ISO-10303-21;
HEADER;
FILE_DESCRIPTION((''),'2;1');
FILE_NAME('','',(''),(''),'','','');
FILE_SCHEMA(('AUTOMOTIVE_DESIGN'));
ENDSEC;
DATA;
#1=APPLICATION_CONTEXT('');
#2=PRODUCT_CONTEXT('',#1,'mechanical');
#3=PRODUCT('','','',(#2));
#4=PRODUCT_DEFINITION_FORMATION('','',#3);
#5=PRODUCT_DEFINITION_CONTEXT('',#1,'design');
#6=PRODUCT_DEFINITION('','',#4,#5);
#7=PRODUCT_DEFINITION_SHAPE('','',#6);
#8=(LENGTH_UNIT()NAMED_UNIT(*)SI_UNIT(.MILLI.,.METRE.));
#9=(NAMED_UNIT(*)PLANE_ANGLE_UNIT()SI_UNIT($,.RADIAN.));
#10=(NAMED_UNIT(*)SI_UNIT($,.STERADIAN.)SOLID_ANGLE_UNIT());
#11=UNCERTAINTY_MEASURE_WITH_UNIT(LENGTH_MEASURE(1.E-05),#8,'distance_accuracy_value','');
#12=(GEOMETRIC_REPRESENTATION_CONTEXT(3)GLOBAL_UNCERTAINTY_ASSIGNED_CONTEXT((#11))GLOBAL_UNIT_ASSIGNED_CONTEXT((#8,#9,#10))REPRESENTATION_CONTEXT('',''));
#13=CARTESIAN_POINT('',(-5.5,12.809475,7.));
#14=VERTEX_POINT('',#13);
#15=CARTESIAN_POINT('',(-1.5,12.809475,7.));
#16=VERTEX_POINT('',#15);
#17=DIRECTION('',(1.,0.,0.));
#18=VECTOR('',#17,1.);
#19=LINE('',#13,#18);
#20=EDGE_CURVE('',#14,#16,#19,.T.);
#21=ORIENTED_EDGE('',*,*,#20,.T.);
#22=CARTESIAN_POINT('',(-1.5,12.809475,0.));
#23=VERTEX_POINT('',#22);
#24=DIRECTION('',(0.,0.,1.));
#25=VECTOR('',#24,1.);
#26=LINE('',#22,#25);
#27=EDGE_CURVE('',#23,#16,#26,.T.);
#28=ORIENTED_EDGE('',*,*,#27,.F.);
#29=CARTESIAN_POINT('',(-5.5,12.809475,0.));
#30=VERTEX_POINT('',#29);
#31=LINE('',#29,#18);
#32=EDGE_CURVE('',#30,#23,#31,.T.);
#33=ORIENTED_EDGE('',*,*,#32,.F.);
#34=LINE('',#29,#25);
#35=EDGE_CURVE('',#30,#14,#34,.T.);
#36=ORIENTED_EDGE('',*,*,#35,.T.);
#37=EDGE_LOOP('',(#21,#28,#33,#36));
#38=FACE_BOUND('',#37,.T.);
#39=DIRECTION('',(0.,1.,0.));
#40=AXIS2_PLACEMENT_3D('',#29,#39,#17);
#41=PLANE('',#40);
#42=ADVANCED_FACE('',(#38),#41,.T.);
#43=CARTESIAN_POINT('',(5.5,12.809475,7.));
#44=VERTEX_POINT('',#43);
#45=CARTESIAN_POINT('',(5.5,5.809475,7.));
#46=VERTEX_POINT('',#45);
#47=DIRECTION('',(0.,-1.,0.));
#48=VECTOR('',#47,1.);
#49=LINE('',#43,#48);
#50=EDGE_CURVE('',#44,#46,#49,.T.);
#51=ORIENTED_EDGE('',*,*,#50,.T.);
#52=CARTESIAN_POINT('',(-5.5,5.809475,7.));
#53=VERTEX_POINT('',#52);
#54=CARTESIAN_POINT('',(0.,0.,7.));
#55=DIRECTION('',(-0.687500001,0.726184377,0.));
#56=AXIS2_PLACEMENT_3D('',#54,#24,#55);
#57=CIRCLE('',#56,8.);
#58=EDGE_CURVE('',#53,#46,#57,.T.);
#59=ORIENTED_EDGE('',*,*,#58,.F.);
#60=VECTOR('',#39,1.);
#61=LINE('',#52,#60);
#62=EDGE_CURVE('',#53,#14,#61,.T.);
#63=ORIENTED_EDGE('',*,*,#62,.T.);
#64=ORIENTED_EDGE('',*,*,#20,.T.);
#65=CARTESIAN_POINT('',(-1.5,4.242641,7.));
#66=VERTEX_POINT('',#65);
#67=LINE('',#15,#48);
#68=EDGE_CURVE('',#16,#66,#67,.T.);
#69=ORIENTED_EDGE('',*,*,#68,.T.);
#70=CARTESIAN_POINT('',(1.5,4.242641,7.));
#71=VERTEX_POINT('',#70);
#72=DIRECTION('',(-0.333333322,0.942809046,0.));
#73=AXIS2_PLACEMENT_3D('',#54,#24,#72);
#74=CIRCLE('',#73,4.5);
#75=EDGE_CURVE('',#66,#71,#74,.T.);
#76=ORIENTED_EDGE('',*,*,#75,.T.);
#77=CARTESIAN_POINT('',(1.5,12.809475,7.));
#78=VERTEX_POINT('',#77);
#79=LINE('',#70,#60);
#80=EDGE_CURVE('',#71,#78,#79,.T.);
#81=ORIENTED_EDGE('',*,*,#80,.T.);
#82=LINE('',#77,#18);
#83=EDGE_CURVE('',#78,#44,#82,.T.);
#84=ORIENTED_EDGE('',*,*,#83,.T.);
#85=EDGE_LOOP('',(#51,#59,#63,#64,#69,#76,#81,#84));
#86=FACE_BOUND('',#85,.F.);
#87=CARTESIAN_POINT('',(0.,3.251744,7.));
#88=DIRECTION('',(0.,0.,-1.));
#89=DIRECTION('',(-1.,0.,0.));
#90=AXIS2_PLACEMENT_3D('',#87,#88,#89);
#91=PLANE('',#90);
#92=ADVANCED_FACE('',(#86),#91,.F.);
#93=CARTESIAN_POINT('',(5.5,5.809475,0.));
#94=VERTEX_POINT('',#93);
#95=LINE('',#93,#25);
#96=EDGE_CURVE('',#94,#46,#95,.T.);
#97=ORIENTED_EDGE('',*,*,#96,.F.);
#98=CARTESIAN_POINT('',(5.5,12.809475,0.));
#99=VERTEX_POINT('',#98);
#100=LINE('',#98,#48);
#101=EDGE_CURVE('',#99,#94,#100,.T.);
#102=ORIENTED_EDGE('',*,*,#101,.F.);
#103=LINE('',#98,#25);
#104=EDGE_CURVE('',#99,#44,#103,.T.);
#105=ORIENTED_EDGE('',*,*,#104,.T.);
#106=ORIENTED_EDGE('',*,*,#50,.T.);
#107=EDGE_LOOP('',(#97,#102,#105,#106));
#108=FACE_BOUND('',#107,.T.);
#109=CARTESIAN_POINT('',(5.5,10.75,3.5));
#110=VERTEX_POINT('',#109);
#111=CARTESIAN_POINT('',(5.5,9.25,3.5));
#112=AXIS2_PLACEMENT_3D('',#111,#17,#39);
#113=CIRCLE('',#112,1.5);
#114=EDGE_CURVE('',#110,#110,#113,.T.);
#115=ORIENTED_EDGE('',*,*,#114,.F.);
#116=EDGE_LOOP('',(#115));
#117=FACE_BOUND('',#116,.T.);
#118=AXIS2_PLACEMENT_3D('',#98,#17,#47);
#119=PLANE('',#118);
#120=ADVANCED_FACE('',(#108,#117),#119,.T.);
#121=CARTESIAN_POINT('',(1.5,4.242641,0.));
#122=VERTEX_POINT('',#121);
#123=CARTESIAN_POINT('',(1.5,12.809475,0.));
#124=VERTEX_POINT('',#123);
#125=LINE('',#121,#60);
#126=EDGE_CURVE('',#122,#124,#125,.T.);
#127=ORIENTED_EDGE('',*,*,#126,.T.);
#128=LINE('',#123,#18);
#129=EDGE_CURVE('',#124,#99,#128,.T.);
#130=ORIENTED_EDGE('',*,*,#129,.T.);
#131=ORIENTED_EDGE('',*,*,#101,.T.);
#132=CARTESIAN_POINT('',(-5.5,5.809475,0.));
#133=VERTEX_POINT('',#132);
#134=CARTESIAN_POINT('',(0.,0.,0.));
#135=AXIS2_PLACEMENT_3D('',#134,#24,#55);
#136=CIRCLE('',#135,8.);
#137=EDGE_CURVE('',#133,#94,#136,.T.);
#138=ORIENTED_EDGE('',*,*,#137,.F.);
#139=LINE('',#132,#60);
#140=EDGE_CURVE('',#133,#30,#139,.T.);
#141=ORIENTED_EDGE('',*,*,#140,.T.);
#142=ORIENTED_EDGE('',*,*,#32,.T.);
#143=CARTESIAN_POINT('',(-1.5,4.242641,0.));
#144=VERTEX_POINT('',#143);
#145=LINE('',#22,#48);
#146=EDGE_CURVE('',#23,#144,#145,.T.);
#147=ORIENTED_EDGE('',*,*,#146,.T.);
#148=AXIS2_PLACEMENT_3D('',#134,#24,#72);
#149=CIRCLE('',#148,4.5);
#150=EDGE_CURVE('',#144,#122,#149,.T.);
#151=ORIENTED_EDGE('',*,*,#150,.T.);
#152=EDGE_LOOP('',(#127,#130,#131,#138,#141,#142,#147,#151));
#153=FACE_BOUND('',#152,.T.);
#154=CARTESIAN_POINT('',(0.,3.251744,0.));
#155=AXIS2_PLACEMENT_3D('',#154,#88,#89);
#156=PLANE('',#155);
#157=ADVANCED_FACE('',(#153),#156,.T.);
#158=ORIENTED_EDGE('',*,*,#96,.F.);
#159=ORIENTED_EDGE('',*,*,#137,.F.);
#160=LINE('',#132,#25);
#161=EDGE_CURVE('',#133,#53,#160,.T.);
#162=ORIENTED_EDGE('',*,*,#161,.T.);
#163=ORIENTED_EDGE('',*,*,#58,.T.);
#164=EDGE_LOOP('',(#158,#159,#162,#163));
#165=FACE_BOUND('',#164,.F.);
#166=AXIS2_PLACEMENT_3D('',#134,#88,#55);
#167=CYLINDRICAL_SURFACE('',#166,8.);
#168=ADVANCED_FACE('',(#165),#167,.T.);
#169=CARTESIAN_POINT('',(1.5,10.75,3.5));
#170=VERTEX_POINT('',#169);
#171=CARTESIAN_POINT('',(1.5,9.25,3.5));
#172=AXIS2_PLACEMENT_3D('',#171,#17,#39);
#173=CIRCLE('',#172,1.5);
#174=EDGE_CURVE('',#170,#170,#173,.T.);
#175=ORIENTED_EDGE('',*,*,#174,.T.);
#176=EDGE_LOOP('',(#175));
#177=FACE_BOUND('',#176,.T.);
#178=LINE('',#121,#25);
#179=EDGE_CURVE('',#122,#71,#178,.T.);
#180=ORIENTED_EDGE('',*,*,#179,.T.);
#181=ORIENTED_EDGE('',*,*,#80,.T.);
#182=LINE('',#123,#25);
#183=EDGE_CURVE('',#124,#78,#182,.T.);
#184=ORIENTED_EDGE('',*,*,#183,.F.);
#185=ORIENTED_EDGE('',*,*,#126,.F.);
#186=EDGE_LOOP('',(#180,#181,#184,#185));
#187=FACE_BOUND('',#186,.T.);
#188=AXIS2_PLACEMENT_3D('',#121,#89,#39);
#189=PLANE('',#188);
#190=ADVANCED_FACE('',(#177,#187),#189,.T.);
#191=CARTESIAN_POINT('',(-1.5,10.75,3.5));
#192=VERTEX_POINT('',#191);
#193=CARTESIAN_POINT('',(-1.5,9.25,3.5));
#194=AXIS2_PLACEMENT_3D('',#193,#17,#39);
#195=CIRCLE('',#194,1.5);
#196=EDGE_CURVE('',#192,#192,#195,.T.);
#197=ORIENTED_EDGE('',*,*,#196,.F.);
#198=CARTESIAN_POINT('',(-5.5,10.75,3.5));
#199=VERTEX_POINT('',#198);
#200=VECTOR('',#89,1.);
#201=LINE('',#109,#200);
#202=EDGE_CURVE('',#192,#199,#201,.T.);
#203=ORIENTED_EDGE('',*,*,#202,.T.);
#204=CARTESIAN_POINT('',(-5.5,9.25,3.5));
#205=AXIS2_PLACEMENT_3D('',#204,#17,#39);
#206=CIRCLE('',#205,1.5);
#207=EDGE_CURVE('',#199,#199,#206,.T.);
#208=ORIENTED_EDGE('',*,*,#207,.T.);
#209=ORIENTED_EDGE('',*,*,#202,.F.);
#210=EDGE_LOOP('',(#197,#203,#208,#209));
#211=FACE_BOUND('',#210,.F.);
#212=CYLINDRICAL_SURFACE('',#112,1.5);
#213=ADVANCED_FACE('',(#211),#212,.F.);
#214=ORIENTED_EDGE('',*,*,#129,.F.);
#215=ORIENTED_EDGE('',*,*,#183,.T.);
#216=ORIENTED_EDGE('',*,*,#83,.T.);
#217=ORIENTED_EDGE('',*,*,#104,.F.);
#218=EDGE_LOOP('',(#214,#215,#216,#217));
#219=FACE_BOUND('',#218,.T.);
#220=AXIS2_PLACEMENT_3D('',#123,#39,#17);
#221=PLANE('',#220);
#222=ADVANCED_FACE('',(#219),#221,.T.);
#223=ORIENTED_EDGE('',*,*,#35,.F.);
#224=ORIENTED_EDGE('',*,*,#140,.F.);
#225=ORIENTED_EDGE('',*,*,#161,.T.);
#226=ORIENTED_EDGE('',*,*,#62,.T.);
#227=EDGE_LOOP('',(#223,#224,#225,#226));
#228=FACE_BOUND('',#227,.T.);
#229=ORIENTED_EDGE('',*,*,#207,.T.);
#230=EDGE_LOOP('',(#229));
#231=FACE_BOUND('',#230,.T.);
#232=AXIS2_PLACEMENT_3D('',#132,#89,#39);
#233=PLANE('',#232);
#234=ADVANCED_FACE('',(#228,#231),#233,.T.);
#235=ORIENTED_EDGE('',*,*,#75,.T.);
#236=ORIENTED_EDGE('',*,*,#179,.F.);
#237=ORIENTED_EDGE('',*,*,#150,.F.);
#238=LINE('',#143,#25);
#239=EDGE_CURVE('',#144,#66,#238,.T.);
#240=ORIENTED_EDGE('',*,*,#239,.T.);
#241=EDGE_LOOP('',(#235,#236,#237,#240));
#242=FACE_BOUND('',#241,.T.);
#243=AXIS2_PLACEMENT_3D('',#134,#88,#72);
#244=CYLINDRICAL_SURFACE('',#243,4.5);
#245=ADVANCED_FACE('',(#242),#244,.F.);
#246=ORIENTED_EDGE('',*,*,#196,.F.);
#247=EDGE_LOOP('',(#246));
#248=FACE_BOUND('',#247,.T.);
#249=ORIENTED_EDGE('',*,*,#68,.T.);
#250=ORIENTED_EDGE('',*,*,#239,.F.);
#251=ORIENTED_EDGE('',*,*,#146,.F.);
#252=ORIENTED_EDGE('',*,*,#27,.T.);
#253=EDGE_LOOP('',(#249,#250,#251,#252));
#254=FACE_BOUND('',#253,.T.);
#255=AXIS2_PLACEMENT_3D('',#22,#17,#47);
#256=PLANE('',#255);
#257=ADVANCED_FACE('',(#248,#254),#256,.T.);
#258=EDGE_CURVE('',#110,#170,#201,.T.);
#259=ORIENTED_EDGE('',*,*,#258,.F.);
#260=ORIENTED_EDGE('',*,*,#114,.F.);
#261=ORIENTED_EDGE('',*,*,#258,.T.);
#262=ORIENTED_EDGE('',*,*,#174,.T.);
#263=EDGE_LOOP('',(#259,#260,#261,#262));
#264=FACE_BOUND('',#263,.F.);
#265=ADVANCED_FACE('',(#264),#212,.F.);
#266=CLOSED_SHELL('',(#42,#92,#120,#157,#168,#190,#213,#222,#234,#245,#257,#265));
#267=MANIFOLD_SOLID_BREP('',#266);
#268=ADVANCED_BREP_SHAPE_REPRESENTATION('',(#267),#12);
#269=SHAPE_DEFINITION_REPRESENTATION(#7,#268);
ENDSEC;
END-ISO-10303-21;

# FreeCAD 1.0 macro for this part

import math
import FreeCAD as App
import Part
import Sketcher
Q = App.Units.Quantity

doc = App.newDocument("Part")
body = doc.addObject("PartDesign::Body", "Body")

sketch1 = body.newObject("Sketcher::SketchObject", "Sketch")
sketch1.AttachmentSupport = (doc.getObject("XY_Plane"), [""])
sketch1.MapMode = "FlatFace"
sketch1.addGeometry(Part.ArcOfCircle(Part.Circle(App.Vector(0, 0, 0), App.Vector(0, 0, 1), 4.5), math.radians(109.47122), math.radians(430.52878)), False)
sketch1.addGeometry(Part.LineSegment(App.Vector(-1.5, 4.242641, 0), App.Vector(-1.5, 12.809475, 0)), False)
sketch1.addGeometry(Part.LineSegment(App.Vector(-1.5, 12.809475, 0), App.Vector(-5.5, 12.809475, 0)), False)
sketch1.addGeometry(Part.LineSegment(App.Vector(-5.5, 12.809475, 0), App.Vector(-5.5, 5.809475, 0)), False)
sketch1.addGeometry(Part.ArcOfCircle(Part.Circle(App.Vector(0, 0, 0), App.Vector(0, 0, 1), 8), math.radians(133.432537), math.radians(406.567463)), False)
sketch1.addGeometry(Part.LineSegment(App.Vector(5.5, 5.809475, 0), App.Vector(5.5, 12.809475, 0)), False)
sketch1.addGeometry(Part.LineSegment(App.Vector(5.5, 12.809475, 0), App.Vector(1.5, 12.809475, 0)), False)
sketch1.addGeometry(Part.LineSegment(App.Vector(1.5, 12.809475, 0), App.Vector(1.5, 4.242641, 0)), False)
sketch1.addConstraint(Sketcher.Constraint("Coincident", 0, 1, 1, 1))
sketch1.addConstraint(Sketcher.Constraint("Coincident", 1, 2, 2, 1))
sketch1.addConstraint(Sketcher.Constraint("Coincident", 2, 2, 3, 1))
sketch1.addConstraint(Sketcher.Constraint("Coincident", 3, 2, 4, 1))
sketch1.addConstraint(Sketcher.Constraint("Coincident", 4, 2, 5, 1))
sketch1.addConstraint(Sketcher.Constraint("Coincident", 5, 2, 6, 1))
sketch1.addConstraint(Sketcher.Constraint("Coincident", 6, 2, 7, 1))
sketch1.addConstraint(Sketcher.Constraint("Coincident", 7, 2, 0, 2))
sketch1.addConstraint(Sketcher.Constraint("Vertical", 1))
sketch1.addConstraint(Sketcher.Constraint("Horizontal", 2))
sketch1.addConstraint(Sketcher.Constraint("Vertical", 3))
sketch1.addConstraint(Sketcher.Constraint("Vertical", 5))
sketch1.addConstraint(Sketcher.Constraint("Horizontal", 6))
sketch1.addConstraint(Sketcher.Constraint("Vertical", 7))
sketch1.addConstraint(Sketcher.Constraint("Coincident", 0, 3, -1, 1))
sketch1.addConstraint(Sketcher.Constraint("Coincident", 4, 3, -1, 1))
sketch1.addConstraint(Sketcher.Constraint("Symmetric", 2, 2, 5, 2, -2))
sketch1.addConstraint(Sketcher.Constraint("Horizontal", 0, 1, 7, 2))
sketch1.addConstraint(Sketcher.Constraint("Radius", 4, Q("8 mm")))
sketch1.addConstraint(Sketcher.Constraint("Radius", 0, Q("4.5 mm")))
sketch1.addConstraint(Sketcher.Constraint("DistanceX", 2, 2, 2, 1, Q("4 mm")))
sketch1.addConstraint(Sketcher.Constraint("DistanceY", 3, 2, 3, 1, Q("7 mm")))
sketch1.addConstraint(Sketcher.Constraint("DistanceX", 0, 1, 4, 2, Q("7 mm")))
pad1 = body.newObject("PartDesign::Pad", "Pad")
pad1.Profile = sketch1
pad1.Length = 7

sketch2 = body.newObject("Sketcher::SketchObject", "Sketch001")
sketch2.AttachmentSupport = (doc.getObject("YZ_Plane"), [""])
sketch2.MapMode = "FlatFace"
sketch2.AttachmentOffset = App.Placement(App.Vector(0, 0, 5.5), App.Rotation())
sketch2.addGeometry(Part.Circle(App.Vector(9.25, 3.5, 0), App.Vector(0, 0, 1), 1.5), False)
sketch2.addConstraint(Sketcher.Constraint("Diameter", 0, Q("3 mm")))
sketch2.addConstraint(Sketcher.Constraint("DistanceY", -1, 1, 0, 3, Q("3.5 mm")))
sketch2.addConstraint(Sketcher.Constraint("DistanceX", -1, 1, 0, 3, Q("9.25 mm")))
pocket1 = body.newObject("PartDesign::Pocket", "Pocket")
pocket1.Profile = sketch2
pocket1.Type = "ThroughAll"

doc.recompute()
